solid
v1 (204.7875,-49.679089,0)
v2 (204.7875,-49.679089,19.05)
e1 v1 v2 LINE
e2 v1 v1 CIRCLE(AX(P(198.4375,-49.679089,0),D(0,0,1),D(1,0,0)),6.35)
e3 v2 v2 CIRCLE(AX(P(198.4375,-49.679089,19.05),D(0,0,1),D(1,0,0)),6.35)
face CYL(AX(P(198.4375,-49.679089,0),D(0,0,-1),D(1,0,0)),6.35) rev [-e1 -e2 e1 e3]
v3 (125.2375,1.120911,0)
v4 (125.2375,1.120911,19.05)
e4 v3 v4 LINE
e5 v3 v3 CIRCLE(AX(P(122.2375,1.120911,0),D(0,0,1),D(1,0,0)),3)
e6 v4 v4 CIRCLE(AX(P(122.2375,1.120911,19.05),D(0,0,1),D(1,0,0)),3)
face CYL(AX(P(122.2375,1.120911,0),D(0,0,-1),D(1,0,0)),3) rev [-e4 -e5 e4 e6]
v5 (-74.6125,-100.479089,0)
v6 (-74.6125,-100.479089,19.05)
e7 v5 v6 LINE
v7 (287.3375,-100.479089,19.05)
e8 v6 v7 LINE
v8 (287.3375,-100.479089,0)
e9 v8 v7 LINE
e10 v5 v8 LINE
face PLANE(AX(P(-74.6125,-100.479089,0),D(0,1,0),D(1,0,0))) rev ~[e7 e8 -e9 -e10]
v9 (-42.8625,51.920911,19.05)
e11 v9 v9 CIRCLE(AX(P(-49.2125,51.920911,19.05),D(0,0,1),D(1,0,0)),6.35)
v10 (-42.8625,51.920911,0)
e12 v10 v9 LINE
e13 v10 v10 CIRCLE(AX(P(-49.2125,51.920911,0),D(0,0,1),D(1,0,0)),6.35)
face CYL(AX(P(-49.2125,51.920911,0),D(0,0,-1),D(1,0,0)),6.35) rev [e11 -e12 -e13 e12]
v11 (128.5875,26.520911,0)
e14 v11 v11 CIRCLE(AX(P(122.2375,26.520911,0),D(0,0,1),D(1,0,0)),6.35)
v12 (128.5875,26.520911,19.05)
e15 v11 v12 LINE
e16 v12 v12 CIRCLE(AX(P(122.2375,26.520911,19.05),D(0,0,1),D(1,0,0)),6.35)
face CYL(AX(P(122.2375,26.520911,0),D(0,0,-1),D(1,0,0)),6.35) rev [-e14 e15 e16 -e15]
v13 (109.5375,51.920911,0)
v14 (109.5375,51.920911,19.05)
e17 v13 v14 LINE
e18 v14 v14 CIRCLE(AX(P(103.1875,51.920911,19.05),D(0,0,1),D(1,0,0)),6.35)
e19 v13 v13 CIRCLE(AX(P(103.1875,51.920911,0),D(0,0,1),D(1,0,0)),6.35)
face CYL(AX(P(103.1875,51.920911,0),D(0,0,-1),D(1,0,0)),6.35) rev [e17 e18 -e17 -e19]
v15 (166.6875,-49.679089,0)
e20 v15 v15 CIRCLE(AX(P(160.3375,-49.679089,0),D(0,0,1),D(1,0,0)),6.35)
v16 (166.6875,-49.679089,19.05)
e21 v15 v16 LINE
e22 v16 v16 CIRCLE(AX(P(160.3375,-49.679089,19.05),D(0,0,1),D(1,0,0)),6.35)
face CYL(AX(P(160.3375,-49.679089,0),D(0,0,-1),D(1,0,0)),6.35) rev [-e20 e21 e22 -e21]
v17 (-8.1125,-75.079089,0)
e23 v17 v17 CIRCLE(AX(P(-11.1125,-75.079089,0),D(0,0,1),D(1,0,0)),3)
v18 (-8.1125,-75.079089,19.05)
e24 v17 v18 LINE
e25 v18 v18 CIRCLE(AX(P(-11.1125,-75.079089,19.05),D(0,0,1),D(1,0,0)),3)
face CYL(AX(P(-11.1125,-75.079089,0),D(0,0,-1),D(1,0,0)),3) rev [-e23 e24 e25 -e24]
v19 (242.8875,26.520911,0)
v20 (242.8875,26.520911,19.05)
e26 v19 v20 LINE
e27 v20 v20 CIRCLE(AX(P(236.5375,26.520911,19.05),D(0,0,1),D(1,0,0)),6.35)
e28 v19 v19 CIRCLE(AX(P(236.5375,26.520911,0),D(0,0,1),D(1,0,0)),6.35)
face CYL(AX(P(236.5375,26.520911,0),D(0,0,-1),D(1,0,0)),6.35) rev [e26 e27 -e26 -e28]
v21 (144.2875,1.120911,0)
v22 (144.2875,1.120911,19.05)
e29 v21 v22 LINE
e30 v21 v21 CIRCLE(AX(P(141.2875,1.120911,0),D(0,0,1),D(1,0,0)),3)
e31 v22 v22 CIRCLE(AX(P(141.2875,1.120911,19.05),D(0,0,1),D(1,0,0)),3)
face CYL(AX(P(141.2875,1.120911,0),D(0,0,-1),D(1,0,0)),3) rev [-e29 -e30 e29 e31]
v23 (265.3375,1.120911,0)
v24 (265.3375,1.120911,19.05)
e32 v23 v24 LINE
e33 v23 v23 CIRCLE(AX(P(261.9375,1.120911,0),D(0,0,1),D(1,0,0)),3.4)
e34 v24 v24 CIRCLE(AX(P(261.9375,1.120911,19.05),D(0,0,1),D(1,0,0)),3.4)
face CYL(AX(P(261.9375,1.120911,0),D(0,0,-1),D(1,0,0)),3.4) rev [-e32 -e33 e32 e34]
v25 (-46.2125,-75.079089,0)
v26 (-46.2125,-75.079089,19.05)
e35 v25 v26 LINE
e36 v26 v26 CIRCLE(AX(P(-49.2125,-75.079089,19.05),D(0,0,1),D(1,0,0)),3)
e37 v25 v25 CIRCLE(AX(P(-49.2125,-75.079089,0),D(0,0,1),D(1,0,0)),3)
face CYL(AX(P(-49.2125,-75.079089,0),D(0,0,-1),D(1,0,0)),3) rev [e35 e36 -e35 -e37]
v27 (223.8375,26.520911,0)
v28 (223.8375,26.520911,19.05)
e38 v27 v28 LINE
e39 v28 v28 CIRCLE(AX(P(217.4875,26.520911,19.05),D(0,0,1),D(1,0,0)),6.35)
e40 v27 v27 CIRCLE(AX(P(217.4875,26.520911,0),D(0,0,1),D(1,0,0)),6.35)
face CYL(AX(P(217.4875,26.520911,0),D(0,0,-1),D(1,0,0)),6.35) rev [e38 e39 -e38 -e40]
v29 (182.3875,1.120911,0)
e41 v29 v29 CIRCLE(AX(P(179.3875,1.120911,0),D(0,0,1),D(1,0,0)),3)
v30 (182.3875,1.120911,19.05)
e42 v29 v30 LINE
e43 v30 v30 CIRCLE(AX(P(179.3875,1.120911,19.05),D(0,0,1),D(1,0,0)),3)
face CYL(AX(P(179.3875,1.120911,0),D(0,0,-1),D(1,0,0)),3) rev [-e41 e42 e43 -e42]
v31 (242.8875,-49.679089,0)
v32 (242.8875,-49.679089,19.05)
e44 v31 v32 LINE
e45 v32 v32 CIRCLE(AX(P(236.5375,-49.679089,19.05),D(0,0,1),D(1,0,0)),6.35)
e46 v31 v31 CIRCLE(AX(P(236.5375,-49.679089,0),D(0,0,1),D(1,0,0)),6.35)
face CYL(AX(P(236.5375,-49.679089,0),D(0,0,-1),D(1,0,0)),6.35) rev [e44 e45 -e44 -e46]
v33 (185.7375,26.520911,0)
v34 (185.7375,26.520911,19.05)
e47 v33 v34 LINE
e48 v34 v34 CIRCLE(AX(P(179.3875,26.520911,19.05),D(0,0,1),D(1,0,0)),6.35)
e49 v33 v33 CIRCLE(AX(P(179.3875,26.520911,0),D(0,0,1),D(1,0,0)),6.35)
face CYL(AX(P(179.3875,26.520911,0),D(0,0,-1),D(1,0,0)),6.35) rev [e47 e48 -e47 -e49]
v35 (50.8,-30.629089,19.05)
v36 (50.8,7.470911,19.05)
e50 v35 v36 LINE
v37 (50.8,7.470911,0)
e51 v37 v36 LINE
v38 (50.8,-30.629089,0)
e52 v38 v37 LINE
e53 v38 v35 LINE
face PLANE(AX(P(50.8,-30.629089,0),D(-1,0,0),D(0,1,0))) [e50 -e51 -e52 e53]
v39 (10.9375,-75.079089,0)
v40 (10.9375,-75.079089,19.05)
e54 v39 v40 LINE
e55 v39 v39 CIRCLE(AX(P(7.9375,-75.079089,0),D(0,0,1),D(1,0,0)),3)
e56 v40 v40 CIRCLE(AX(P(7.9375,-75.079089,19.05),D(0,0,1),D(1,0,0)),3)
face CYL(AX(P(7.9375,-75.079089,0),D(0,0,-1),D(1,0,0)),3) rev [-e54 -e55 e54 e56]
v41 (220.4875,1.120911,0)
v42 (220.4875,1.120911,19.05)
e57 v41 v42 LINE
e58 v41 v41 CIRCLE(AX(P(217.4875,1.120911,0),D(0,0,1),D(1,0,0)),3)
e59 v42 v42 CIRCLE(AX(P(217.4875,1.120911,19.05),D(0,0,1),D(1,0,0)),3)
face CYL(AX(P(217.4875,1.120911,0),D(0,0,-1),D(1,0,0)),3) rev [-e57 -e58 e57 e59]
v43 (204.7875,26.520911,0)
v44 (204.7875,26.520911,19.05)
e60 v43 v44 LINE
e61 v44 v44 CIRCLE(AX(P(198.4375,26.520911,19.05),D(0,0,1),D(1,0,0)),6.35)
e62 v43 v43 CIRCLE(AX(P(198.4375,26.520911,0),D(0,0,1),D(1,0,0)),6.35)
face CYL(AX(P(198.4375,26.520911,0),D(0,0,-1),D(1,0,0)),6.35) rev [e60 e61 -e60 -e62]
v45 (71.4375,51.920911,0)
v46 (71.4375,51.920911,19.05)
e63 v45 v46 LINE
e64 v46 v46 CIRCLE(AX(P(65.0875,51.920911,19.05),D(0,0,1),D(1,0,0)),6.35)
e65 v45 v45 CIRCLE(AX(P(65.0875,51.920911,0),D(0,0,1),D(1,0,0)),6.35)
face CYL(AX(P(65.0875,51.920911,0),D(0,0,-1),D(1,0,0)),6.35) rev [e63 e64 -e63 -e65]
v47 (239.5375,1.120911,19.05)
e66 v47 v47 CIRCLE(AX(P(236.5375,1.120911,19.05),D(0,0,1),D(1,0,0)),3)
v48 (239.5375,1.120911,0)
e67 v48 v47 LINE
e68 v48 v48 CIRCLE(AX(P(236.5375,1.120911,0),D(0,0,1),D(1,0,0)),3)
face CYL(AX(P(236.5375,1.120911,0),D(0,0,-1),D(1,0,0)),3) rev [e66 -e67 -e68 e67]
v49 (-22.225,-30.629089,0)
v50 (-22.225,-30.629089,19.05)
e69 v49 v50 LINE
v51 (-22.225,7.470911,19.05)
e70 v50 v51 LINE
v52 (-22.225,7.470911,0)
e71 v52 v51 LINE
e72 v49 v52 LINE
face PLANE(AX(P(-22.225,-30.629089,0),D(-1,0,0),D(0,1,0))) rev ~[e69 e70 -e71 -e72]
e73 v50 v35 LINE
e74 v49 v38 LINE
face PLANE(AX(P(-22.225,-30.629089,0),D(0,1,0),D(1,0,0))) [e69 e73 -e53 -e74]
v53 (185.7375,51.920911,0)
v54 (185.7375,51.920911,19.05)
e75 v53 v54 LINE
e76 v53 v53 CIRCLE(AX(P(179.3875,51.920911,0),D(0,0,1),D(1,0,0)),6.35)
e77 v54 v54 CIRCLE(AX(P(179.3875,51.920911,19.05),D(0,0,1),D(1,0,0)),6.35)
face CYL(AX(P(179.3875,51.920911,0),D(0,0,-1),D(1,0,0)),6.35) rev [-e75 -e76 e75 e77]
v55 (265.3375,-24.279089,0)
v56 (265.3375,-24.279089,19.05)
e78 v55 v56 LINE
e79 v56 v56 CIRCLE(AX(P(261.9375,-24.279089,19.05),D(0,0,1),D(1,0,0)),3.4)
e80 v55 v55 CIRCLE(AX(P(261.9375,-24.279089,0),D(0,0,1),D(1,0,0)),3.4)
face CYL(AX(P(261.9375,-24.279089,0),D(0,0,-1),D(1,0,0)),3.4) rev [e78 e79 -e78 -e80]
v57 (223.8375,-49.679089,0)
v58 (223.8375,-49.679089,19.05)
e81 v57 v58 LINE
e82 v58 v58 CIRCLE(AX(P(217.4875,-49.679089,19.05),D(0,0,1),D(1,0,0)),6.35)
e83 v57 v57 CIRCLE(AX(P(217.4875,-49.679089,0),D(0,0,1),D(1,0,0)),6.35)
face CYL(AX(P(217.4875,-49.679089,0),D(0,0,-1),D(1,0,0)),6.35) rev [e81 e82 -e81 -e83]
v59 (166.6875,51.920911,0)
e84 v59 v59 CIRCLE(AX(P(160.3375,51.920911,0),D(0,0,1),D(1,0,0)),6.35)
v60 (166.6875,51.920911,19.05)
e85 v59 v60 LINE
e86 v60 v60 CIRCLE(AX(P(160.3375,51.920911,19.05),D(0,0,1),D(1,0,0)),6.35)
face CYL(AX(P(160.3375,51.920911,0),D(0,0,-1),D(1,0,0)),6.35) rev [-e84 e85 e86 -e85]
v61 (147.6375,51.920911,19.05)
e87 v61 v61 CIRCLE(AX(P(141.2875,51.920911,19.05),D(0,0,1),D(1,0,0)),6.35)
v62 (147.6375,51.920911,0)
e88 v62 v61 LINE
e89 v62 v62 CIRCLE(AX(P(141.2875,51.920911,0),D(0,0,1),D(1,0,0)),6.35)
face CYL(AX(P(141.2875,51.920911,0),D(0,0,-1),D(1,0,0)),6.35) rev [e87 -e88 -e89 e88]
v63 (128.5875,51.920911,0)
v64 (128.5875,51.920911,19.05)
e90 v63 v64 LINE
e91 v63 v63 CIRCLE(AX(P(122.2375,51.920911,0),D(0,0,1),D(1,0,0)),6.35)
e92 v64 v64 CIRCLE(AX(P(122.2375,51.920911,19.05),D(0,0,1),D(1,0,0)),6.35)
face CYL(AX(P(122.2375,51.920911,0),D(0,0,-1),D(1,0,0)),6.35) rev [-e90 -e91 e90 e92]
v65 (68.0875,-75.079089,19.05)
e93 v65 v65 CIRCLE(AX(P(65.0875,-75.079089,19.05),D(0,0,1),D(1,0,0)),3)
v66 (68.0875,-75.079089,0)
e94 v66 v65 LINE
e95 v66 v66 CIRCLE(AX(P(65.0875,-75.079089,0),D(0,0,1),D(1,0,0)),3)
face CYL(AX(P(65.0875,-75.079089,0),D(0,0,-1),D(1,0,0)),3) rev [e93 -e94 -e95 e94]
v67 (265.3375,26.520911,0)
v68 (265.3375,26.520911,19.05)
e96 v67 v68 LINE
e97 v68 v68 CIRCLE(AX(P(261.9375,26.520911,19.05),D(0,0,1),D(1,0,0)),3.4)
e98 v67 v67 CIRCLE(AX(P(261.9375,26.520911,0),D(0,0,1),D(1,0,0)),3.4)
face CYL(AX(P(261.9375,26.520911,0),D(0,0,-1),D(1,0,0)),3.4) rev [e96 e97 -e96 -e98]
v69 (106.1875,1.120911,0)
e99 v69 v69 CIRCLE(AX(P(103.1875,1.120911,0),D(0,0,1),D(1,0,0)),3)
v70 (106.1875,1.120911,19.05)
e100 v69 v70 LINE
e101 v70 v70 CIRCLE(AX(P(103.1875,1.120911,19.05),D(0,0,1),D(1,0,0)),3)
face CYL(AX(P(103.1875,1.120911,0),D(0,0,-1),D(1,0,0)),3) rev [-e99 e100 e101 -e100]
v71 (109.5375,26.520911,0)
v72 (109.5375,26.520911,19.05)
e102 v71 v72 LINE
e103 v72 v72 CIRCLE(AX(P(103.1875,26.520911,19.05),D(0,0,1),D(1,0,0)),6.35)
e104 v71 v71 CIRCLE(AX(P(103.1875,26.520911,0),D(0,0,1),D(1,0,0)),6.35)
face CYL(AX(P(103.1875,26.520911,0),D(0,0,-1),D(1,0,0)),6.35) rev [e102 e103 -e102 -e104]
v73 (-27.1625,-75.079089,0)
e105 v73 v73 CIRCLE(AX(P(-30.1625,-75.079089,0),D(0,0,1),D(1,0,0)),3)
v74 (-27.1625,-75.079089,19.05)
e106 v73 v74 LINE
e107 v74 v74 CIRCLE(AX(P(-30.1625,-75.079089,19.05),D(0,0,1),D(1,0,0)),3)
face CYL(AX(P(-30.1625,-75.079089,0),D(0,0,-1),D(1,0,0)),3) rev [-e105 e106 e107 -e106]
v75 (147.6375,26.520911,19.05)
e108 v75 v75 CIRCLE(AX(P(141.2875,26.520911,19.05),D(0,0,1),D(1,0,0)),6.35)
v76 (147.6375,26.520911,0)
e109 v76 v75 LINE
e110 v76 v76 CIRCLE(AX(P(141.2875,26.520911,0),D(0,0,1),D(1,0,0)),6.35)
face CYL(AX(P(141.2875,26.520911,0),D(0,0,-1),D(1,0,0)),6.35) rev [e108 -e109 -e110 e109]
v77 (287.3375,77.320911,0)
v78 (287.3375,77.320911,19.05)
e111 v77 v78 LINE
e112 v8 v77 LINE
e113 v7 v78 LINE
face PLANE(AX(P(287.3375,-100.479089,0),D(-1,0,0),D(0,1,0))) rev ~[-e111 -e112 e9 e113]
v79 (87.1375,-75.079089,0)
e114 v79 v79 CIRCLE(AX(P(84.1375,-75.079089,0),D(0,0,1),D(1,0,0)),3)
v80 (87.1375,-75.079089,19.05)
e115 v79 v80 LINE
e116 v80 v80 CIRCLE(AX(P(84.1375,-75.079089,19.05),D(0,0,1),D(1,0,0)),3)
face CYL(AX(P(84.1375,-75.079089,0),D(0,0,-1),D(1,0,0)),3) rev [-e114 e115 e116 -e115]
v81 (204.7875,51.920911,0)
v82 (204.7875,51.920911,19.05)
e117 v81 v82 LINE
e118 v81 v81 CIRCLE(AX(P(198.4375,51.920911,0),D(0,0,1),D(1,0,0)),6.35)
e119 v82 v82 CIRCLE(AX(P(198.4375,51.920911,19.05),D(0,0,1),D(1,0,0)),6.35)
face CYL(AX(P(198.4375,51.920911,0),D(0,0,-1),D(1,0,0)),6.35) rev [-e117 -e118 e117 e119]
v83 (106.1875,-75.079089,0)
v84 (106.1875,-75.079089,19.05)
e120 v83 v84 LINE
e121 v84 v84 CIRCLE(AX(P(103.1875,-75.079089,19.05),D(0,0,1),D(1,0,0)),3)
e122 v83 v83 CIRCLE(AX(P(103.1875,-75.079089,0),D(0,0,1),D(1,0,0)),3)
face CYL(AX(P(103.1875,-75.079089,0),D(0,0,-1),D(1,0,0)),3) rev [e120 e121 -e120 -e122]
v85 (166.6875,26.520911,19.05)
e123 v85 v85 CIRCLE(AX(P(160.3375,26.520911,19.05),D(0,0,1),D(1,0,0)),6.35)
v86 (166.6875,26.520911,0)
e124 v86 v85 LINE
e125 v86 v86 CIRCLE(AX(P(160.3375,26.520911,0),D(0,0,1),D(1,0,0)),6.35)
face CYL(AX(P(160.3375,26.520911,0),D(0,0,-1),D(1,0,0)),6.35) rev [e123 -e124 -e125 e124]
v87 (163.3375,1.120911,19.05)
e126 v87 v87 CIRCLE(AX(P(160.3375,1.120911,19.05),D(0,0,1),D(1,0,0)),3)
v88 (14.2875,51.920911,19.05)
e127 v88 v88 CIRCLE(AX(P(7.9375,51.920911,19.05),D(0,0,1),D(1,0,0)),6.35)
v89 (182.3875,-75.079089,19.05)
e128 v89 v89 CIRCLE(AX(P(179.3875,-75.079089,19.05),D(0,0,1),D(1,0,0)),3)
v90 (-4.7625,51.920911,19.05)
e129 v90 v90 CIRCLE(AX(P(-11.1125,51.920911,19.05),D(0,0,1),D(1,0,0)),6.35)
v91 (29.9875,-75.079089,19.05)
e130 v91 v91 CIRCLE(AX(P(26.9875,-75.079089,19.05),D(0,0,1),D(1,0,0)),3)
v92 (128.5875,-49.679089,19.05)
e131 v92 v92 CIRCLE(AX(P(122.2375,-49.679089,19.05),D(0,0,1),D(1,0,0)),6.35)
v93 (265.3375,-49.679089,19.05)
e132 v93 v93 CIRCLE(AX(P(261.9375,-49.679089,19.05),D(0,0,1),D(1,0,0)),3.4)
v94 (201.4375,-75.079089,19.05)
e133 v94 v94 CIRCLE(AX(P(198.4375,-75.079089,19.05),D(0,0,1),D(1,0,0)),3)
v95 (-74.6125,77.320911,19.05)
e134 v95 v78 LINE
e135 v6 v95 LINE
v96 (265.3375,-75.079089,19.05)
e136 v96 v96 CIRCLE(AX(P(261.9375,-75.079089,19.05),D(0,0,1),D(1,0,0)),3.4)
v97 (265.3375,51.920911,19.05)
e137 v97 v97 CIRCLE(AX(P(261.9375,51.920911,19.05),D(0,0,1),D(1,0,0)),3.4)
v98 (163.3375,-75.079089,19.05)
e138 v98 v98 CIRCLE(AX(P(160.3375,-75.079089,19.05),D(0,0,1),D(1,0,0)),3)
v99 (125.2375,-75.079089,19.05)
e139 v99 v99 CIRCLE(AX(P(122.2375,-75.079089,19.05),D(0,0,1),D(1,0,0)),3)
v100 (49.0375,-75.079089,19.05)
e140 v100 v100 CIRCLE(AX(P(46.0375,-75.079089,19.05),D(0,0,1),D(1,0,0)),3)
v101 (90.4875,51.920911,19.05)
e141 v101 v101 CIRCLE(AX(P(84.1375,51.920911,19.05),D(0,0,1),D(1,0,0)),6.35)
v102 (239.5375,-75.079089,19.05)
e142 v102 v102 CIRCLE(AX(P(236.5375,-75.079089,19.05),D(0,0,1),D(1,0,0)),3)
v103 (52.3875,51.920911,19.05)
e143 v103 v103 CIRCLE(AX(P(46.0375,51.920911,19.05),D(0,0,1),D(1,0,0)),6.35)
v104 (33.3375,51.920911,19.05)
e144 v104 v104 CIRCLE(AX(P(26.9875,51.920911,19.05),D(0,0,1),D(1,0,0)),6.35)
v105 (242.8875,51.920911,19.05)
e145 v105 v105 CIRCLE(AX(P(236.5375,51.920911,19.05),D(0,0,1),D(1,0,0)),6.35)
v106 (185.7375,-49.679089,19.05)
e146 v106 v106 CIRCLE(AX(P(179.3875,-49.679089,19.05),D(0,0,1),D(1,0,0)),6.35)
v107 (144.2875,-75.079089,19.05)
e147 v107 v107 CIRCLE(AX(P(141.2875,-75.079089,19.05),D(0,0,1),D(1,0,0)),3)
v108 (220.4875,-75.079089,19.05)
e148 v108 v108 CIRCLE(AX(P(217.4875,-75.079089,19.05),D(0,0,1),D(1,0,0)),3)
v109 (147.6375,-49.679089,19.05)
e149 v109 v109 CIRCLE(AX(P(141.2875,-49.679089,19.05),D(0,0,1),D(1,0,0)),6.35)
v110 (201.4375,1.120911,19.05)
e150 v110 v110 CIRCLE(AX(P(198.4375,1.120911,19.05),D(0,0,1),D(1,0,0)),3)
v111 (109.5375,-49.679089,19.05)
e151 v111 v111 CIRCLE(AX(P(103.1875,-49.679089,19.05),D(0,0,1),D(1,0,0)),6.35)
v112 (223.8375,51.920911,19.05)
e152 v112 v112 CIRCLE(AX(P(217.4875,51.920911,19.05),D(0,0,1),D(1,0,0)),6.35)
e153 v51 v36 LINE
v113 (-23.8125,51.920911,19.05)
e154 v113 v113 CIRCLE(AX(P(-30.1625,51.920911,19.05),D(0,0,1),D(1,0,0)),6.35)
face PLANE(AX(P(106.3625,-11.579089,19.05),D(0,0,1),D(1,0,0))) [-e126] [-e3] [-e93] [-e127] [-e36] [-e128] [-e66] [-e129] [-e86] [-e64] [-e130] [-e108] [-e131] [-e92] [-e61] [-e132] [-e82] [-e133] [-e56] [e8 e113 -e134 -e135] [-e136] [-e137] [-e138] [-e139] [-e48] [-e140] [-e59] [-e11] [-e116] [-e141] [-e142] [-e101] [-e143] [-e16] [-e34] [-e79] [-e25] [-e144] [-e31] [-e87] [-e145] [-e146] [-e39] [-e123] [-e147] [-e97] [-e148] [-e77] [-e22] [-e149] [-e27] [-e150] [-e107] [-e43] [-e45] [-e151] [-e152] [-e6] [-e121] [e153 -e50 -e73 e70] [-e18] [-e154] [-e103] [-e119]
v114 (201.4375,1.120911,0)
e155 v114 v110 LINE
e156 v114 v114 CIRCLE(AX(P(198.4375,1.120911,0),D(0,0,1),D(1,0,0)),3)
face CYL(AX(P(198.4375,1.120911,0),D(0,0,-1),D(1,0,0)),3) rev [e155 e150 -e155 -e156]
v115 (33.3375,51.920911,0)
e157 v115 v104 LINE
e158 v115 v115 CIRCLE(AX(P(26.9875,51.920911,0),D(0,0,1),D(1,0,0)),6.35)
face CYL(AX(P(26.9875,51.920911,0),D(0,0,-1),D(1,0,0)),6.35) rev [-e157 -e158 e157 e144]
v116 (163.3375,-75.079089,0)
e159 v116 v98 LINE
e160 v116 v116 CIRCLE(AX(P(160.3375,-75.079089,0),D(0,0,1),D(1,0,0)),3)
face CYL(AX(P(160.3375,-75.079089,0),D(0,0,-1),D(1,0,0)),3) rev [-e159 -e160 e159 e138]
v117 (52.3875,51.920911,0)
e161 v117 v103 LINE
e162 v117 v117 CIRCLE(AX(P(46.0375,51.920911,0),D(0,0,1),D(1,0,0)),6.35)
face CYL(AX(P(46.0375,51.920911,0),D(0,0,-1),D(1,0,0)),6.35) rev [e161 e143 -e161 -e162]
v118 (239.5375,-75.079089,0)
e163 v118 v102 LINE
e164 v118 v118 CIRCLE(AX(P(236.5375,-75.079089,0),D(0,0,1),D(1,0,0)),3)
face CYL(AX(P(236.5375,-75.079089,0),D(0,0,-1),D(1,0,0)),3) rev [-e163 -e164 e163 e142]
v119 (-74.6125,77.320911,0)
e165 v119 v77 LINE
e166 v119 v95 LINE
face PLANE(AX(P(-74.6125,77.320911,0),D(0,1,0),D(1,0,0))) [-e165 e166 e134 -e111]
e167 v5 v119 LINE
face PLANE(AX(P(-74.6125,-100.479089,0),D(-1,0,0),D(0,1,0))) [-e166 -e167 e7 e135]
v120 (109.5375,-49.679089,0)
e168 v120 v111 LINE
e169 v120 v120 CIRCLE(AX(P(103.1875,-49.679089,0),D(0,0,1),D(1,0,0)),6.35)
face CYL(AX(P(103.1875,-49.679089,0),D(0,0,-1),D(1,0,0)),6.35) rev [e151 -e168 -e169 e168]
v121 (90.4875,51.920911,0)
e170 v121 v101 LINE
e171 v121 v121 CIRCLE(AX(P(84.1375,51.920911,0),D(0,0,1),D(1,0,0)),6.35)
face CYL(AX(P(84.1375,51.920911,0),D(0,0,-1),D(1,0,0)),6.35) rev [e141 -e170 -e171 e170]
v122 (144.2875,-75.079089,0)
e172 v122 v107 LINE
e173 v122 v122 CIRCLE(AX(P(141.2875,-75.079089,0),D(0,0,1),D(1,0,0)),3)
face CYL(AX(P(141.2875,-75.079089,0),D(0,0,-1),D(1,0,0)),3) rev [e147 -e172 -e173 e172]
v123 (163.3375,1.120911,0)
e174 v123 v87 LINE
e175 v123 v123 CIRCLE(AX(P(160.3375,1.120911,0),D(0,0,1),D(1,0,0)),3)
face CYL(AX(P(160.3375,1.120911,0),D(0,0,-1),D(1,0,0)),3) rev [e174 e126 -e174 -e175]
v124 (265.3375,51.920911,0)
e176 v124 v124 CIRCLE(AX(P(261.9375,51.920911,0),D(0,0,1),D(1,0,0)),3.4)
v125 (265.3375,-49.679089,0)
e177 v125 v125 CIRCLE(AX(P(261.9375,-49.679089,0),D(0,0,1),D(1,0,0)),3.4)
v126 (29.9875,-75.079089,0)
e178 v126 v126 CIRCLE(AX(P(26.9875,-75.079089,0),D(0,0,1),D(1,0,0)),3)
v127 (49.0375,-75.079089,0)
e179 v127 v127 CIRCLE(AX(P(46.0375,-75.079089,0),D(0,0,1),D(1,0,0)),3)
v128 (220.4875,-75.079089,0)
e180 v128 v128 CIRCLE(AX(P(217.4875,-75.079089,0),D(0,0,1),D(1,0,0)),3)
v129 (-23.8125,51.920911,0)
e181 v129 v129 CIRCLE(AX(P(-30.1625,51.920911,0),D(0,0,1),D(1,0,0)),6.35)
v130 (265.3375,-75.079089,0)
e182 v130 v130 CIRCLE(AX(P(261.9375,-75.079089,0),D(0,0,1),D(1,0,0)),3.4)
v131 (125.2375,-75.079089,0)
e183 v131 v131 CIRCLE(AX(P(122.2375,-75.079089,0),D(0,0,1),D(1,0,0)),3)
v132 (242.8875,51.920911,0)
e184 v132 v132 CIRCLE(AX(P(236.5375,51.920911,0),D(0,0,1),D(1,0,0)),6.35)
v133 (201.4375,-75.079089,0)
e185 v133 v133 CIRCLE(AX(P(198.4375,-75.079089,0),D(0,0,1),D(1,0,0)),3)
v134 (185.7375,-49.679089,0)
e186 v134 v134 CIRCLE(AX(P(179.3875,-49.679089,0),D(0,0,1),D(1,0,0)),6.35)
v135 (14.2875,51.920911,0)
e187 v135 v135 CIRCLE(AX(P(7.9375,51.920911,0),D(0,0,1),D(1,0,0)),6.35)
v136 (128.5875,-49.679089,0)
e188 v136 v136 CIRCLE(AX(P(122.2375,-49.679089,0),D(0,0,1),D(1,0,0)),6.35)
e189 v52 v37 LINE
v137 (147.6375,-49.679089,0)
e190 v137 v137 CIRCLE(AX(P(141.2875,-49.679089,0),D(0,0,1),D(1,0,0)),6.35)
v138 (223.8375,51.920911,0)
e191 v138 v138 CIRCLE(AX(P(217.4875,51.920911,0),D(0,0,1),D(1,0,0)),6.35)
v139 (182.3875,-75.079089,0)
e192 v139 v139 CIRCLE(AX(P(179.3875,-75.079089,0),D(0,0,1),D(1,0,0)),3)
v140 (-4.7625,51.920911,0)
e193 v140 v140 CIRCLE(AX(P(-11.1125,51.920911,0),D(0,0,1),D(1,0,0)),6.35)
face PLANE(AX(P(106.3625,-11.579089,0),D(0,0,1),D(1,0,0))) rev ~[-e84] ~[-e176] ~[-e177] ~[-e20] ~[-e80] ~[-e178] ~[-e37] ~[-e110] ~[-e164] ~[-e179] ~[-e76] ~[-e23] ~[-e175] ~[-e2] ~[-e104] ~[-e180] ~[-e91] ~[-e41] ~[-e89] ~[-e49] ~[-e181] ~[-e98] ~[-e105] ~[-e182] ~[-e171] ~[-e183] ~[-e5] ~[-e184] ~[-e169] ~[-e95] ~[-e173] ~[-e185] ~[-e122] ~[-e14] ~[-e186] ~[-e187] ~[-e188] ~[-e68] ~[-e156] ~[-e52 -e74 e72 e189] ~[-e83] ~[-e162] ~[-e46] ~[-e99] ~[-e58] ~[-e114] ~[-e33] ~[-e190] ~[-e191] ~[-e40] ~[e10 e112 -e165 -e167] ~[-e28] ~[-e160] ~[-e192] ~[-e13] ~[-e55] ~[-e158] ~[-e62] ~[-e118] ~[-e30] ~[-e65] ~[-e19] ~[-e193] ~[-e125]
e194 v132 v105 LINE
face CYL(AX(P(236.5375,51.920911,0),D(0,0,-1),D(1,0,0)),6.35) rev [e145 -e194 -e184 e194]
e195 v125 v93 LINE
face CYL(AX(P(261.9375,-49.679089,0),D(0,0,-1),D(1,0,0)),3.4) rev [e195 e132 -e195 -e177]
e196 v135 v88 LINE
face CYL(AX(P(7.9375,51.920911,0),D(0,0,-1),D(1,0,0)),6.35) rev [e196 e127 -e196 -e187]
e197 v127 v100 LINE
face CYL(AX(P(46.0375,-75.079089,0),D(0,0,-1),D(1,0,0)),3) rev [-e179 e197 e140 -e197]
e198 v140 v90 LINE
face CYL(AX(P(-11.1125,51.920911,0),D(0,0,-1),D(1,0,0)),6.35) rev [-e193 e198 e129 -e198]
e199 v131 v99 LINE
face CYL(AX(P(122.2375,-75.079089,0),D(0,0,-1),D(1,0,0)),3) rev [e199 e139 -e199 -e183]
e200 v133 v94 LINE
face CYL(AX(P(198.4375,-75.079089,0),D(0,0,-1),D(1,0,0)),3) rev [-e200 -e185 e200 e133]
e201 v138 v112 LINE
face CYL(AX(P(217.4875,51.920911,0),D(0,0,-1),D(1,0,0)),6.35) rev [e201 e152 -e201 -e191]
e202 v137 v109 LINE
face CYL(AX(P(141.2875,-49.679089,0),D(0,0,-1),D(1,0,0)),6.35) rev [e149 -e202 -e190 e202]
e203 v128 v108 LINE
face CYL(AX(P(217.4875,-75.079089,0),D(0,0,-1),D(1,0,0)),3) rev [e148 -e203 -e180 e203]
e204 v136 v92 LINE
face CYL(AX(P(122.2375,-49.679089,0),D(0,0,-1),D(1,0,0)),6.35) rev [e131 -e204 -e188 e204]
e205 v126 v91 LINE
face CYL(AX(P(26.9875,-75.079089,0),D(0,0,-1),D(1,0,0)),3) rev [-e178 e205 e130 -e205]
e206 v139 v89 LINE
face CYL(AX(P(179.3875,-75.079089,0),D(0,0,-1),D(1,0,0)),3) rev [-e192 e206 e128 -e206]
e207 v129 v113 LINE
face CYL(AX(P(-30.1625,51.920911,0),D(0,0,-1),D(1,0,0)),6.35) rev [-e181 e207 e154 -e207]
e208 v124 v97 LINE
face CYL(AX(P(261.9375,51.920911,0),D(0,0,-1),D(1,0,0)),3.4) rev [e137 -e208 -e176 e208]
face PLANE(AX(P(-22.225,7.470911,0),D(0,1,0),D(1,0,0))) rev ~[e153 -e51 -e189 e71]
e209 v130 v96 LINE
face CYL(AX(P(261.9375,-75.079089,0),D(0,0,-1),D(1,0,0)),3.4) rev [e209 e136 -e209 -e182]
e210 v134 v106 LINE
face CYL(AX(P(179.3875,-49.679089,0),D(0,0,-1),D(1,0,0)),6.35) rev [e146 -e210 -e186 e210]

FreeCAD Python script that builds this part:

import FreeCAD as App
import Part
import Sketcher

V = App.Vector
Q = App.Units.Quantity


def add_polygon(sketch, points):
    """Adds a closed chain of lines whose ends are joined by coincident constraints."""
    first, n = sketch.GeometryCount, len(points)
    for a, b in zip(points, points[1:] + points[:1]):
        sketch.addGeometry(Part.LineSegment(App.Vector(*a, 0), App.Vector(*b, 0)), False)
    for i in range(n):
        sketch.addConstraint(Sketcher.Constraint("Coincident", first + i, 2, first + (i + 1) % n, 1))

doc = App.newDocument("Part")
body = doc.addObject("PartDesign::Body", "Body")

# Sketch on XY plane
sketch1 = doc.addObject("Sketcher::SketchObject", "Sketch")
body.addObject(sketch1)
sketch1.AttachmentSupport = (doc.XY_Plane, [""])
sketch1.MapMode = "FlatFace"
add_polygon(sketch1, [(-74.6, 77.3), (-74.6, -100.5), (287.3, -100.5), (287.3, 77.3)])  # lines 0-3
sketch1.addGeometry(Part.Circle(V(-49.2, -75.1, 0), V(0, 0, 1), 3), False)  # 4
sketch1.addGeometry(Part.Circle(V(-30.2, -75.1, 0), V(0, 0, 1), 3), False)  # 5
sketch1.addGeometry(Part.Circle(V(-11.1, -75.1, 0), V(0, 0, 1), 3), False)  # 6
sketch1.addGeometry(Part.Circle(V(7.9, -75.1, 0), V(0, 0, 1), 3), False)  # 7
sketch1.addGeometry(Part.Circle(V(27, -75.1, 0), V(0, 0, 1), 3), False)  # 8
sketch1.addGeometry(Part.Circle(V(46, -75.1, 0), V(0, 0, 1), 3), False)  # 9
sketch1.addGeometry(Part.Circle(V(65.1, -75.1, 0), V(0, 0, 1), 3), False)  # 10
sketch1.addGeometry(Part.Circle(V(84.1, -75.1, 0), V(0, 0, 1), 3), False)  # 11
sketch1.addGeometry(Part.Circle(V(103.2, -75.1, 0), V(0, 0, 1), 3), False)  # 12
sketch1.addGeometry(Part.Circle(V(103.2, -49.7, 0), V(0, 0, 1), 6.3), False)  # 13
add_polygon(sketch1, [(50.8, -30.6), (-22.2, -30.6), (-22.2, 7.5), (50.8, 7.5)])  # lines 14-17
sketch1.addGeometry(Part.Circle(V(122.2, -75.1, 0), V(0, 0, 1), 3), False)  # 18
sketch1.addGeometry(Part.Circle(V(141.3, -75.1, 0), V(0, 0, 1), 3), False)  # 19
sketch1.addGeometry(Part.Circle(V(160.3, -75.1, 0), V(0, 0, 1), 3), False)  # 20
sketch1.addGeometry(Part.Circle(V(179.4, -75.1, 0), V(0, 0, 1), 3), False)  # 21
sketch1.addGeometry(Part.Circle(V(122.2, -49.7, 0), V(0, 0, 1), 6.3), False)  # 22
sketch1.addGeometry(Part.Circle(V(141.3, -49.7, 0), V(0, 0, 1), 6.3), False)  # 23
sketch1.addGeometry(Part.Circle(V(160.3, -49.7, 0), V(0, 0, 1), 6.3), False)  # 24
sketch1.addGeometry(Part.Circle(V(179.4, -49.7, 0), V(0, 0, 1), 6.3), False)  # 25
sketch1.addGeometry(Part.Circle(V(198.4, -75.1, 0), V(0, 0, 1), 3), False)  # 26
sketch1.addGeometry(Part.Circle(V(217.5, -75.1, 0), V(0, 0, 1), 3), False)  # 27
sketch1.addGeometry(Part.Circle(V(236.5, -75.1, 0), V(0, 0, 1), 3), False)  # 28
sketch1.addGeometry(Part.Circle(V(261.9, -75.1, 0), V(0, 0, 1), 3.4), False)  # 29
sketch1.addGeometry(Part.Circle(V(198.4, -49.7, 0), V(0, 0, 1), 6.3), False)  # 30
sketch1.addGeometry(Part.Circle(V(217.5, -49.7, 0), V(0, 0, 1), 6.3), False)  # 31
sketch1.addGeometry(Part.Circle(V(236.5, -49.7, 0), V(0, 0, 1), 6.3), False)  # 32
sketch1.addGeometry(Part.Circle(V(261.9, -49.7, 0), V(0, 0, 1), 3.4), False)  # 33
sketch1.addGeometry(Part.Circle(V(261.9, -24.3, 0), V(0, 0, 1), 3.4), False)  # 34
sketch1.addGeometry(Part.Circle(V(103.2, 1.1, 0), V(0, 0, 1), 3), False)  # 35
sketch1.addGeometry(Part.Circle(V(-49.2, 51.9, 0), V(0, 0, 1), 6.3), False)  # 36
sketch1.addGeometry(Part.Circle(V(-30.2, 51.9, 0), V(0, 0, 1), 6.3), False)  # 37
sketch1.addGeometry(Part.Circle(V(-11.1, 51.9, 0), V(0, 0, 1), 6.3), False)  # 38
sketch1.addGeometry(Part.Circle(V(7.9, 51.9, 0), V(0, 0, 1), 6.3), False)  # 39
sketch1.addGeometry(Part.Circle(V(103.2, 26.5, 0), V(0, 0, 1), 6.3), False)  # 40
sketch1.addGeometry(Part.Circle(V(27, 51.9, 0), V(0, 0, 1), 6.3), False)  # 41
sketch1.addGeometry(Part.Circle(V(46, 51.9, 0), V(0, 0, 1), 6.3), False)  # 42
sketch1.addGeometry(Part.Circle(V(65.1, 51.9, 0), V(0, 0, 1), 6.3), False)  # 43
sketch1.addGeometry(Part.Circle(V(84.1, 51.9, 0), V(0, 0, 1), 6.3), False)  # 44
sketch1.addGeometry(Part.Circle(V(103.2, 51.9, 0), V(0, 0, 1), 6.3), False)  # 45
sketch1.addGeometry(Part.Circle(V(122.2, 1.1, 0), V(0, 0, 1), 3), False)  # 46
sketch1.addGeometry(Part.Circle(V(141.3, 1.1, 0), V(0, 0, 1), 3), False)  # 47
sketch1.addGeometry(Part.Circle(V(160.3, 1.1, 0), V(0, 0, 1), 3), False)  # 48
sketch1.addGeometry(Part.Circle(V(179.4, 1.1, 0), V(0, 0, 1), 3), False)  # 49
sketch1.addGeometry(Part.Circle(V(198.4, 1.1, 0), V(0, 0, 1), 3), False)  # 50
sketch1.addGeometry(Part.Circle(V(217.5, 1.1, 0), V(0, 0, 1), 3), False)  # 51
sketch1.addGeometry(Part.Circle(V(236.5, 1.1, 0), V(0, 0, 1), 3), False)  # 52
sketch1.addGeometry(Part.Circle(V(261.9, 1.1, 0), V(0, 0, 1), 3.4), False)  # 53
sketch1.addGeometry(Part.Circle(V(122.2, 26.5, 0), V(0, 0, 1), 6.3), False)  # 54
sketch1.addGeometry(Part.Circle(V(141.3, 26.5, 0), V(0, 0, 1), 6.3), False)  # 55
sketch1.addGeometry(Part.Circle(V(160.3, 26.5, 0), V(0, 0, 1), 6.3), False)  # 56
sketch1.addGeometry(Part.Circle(V(179.4, 26.5, 0), V(0, 0, 1), 6.3), False)  # 57
sketch1.addGeometry(Part.Circle(V(122.2, 51.9, 0), V(0, 0, 1), 6.3), False)  # 58
sketch1.addGeometry(Part.Circle(V(141.3, 51.9, 0), V(0, 0, 1), 6.3), False)  # 59
sketch1.addGeometry(Part.Circle(V(160.3, 51.9, 0), V(0, 0, 1), 6.3), False)  # 60
sketch1.addGeometry(Part.Circle(V(179.4, 51.9, 0), V(0, 0, 1), 6.3), False)  # 61
sketch1.addGeometry(Part.Circle(V(198.4, 26.5, 0), V(0, 0, 1), 6.3), False)  # 62
sketch1.addGeometry(Part.Circle(V(217.5, 26.5, 0), V(0, 0, 1), 6.3), False)  # 63
sketch1.addGeometry(Part.Circle(V(236.5, 26.5, 0), V(0, 0, 1), 6.3), False)  # 64
sketch1.addGeometry(Part.Circle(V(261.9, 26.5, 0), V(0, 0, 1), 3.4), False)  # 65
sketch1.addGeometry(Part.Circle(V(198.4, 51.9, 0), V(0, 0, 1), 6.3), False)  # 66
sketch1.addGeometry(Part.Circle(V(217.5, 51.9, 0), V(0, 0, 1), 6.3), False)  # 67
sketch1.addGeometry(Part.Circle(V(236.5, 51.9, 0), V(0, 0, 1), 6.3), False)  # 68
sketch1.addGeometry(Part.Circle(V(261.9, 51.9, 0), V(0, 0, 1), 3.4), False)  # 69
sketch1.addConstraint(Sketcher.Constraint("Vertical", 0))
sketch1.addConstraint(Sketcher.Constraint("Horizontal", 1))
sketch1.addConstraint(Sketcher.Constraint("Vertical", 2))
sketch1.addConstraint(Sketcher.Constraint("Horizontal", 3))
sketch1.addConstraint(Sketcher.Constraint("Horizontal", 14))
sketch1.addConstraint(Sketcher.Constraint("Vertical", 15))
sketch1.addConstraint(Sketcher.Constraint("Horizontal", 16))
sketch1.addConstraint(Sketcher.Constraint("Vertical", 17))
sketch1.addConstraint(Sketcher.Constraint("Equal", 4, 5))
sketch1.addConstraint(Sketcher.Constraint("Equal", 5, 6))
sketch1.addConstraint(Sketcher.Constraint("Equal", 6, 7))
sketch1.addConstraint(Sketcher.Constraint("Equal", 7, 8))
sketch1.addConstraint(Sketcher.Constraint("Equal", 8, 9))
sketch1.addConstraint(Sketcher.Constraint("Equal", 9, 10))
sketch1.addConstraint(Sketcher.Constraint("Equal", 10, 11))
sketch1.addConstraint(Sketcher.Constraint("Equal", 11, 12))
sketch1.addConstraint(Sketcher.Constraint("Equal", 12, 18))
sketch1.addConstraint(Sketcher.Constraint("Equal", 18, 19))
sketch1.addConstraint(Sketcher.Constraint("Equal", 19, 20))
sketch1.addConstraint(Sketcher.Constraint("Equal", 20, 21))
sketch1.addConstraint(Sketcher.Constraint("Equal", 13, 22))
sketch1.addConstraint(Sketcher.Constraint("Equal", 22, 23))
sketch1.addConstraint(Sketcher.Constraint("Equal", 23, 24))
sketch1.addConstraint(Sketcher.Constraint("Equal", 24, 25))
sketch1.addConstraint(Sketcher.Constraint("Equal", 21, 26))
sketch1.addConstraint(Sketcher.Constraint("Equal", 26, 27))
sketch1.addConstraint(Sketcher.Constraint("Equal", 27, 28))
sketch1.addConstraint(Sketcher.Constraint("Equal", 25, 30))
sketch1.addConstraint(Sketcher.Constraint("Equal", 30, 31))
sketch1.addConstraint(Sketcher.Constraint("Equal", 31, 32))
sketch1.addConstraint(Sketcher.Constraint("Equal", 29, 33))
sketch1.addConstraint(Sketcher.Constraint("Equal", 33, 34))
sketch1.addConstraint(Sketcher.Constraint("Equal", 28, 35))
sketch1.addConstraint(Sketcher.Constraint("Equal", 32, 36))
sketch1.addConstraint(Sketcher.Constraint("Equal", 36, 37))
sketch1.addConstraint(Sketcher.Constraint("Equal", 37, 38))
sketch1.addConstraint(Sketcher.Constraint("Equal", 38, 39))
sketch1.addConstraint(Sketcher.Constraint("Equal", 39, 40))
sketch1.addConstraint(Sketcher.Constraint("Equal", 40, 41))
sketch1.addConstraint(Sketcher.Constraint("Equal", 41, 42))
sketch1.addConstraint(Sketcher.Constraint("Equal", 42, 43))
sketch1.addConstraint(Sketcher.Constraint("Equal", 43, 44))
sketch1.addConstraint(Sketcher.Constraint("Equal", 44, 45))
sketch1.addConstraint(Sketcher.Constraint("Equal", 35, 46))
sketch1.addConstraint(Sketcher.Constraint("Equal", 46, 47))
sketch1.addConstraint(Sketcher.Constraint("Equal", 47, 48))
sketch1.addConstraint(Sketcher.Constraint("Equal", 48, 49))
sketch1.addConstraint(Sketcher.Constraint("Equal", 49, 50))
sketch1.addConstraint(Sketcher.Constraint("Equal", 50, 51))
sketch1.addConstraint(Sketcher.Constraint("Equal", 51, 52))
sketch1.addConstraint(Sketcher.Constraint("Equal", 34, 53))
sketch1.addConstraint(Sketcher.Constraint("Equal", 45, 54))
sketch1.addConstraint(Sketcher.Constraint("Equal", 54, 55))
sketch1.addConstraint(Sketcher.Constraint("Equal", 55, 56))
sketch1.addConstraint(Sketcher.Constraint("Equal", 56, 57))
sketch1.addConstraint(Sketcher.Constraint("Equal", 57, 58))
sketch1.addConstraint(Sketcher.Constraint("Equal", 58, 59))
sketch1.addConstraint(Sketcher.Constraint("Equal", 59, 60))
sketch1.addConstraint(Sketcher.Constraint("Equal", 60, 61))
sketch1.addConstraint(Sketcher.Constraint("Equal", 61, 62))
sketch1.addConstraint(Sketcher.Constraint("Equal", 62, 63))
sketch1.addConstraint(Sketcher.Constraint("Equal", 63, 64))
sketch1.addConstraint(Sketcher.Constraint("Equal", 53, 65))
sketch1.addConstraint(Sketcher.Constraint("Equal", 64, 66))
sketch1.addConstraint(Sketcher.Constraint("Equal", 66, 67))
sketch1.addConstraint(Sketcher.Constraint("Equal", 67, 68))
sketch1.addConstraint(Sketcher.Constraint("Equal", 65, 69))
sketch1.addConstraint(Sketcher.Constraint("Horizontal", 4, 3, 5, 3))
sketch1.addConstraint(Sketcher.Constraint("Horizontal", 5, 3, 6, 3))
sketch1.addConstraint(Sketcher.Constraint("Horizontal", 6, 3, 7, 3))
sketch1.addConstraint(Sketcher.Constraint("Horizontal", 7, 3, 8, 3))
sketch1.addConstraint(Sketcher.Constraint("Horizontal", 8, 3, 9, 3))
sketch1.addConstraint(Sketcher.Constraint("Horizontal", 9, 3, 10, 3))
sketch1.addConstraint(Sketcher.Constraint("Horizontal", 10, 3, 11, 3))
sketch1.addConstraint(Sketcher.Constraint("Horizontal", 11, 3, 12, 3))
sketch1.addConstraint(Sketcher.Constraint("Horizontal", 12, 3, 18, 3))
sketch1.addConstraint(Sketcher.Constraint("Horizontal", 18, 3, 19, 3))
sketch1.addConstraint(Sketcher.Constraint("Horizontal", 19, 3, 20, 3))
sketch1.addConstraint(Sketcher.Constraint("Horizontal", 20, 3, 21, 3))
sketch1.addConstraint(Sketcher.Constraint("Horizontal", 13, 3, 22, 3))
sketch1.addConstraint(Sketcher.Constraint("Horizontal", 22, 3, 23, 3))
sketch1.addConstraint(Sketcher.Constraint("Horizontal", 23, 3, 24, 3))
sketch1.addConstraint(Sketcher.Constraint("Horizontal", 24, 3, 25, 3))
sketch1.addConstraint(Sketcher.Constraint("Horizontal", 21, 3, 26, 3))
sketch1.addConstraint(Sketcher.Constraint("Horizontal", 26, 3, 27, 3))
sketch1.addConstraint(Sketcher.Constraint("Horizontal", 27, 3, 28, 3))
sketch1.addConstraint(Sketcher.Constraint("Horizontal", 28, 3, 29, 3))
sketch1.addConstraint(Sketcher.Constraint("Horizontal", 25, 3, 30, 3))
sketch1.addConstraint(Sketcher.Constraint("Horizontal", 30, 3, 31, 3))
sketch1.addConstraint(Sketcher.Constraint("Horizontal", 31, 3, 32, 3))
sketch1.addConstraint(Sketcher.Constraint("Horizontal", 32, 3, 33, 3))
sketch1.addConstraint(Sketcher.Constraint("Horizontal", 36, 3, 37, 3))
sketch1.addConstraint(Sketcher.Constraint("Horizontal", 37, 3, 38, 3))
sketch1.addConstraint(Sketcher.Constraint("Horizontal", 38, 3, 39, 3))
sketch1.addConstraint(Sketcher.Constraint("Horizontal", 39, 3, 41, 3))
sketch1.addConstraint(Sketcher.Constraint("Horizontal", 41, 3, 42, 3))
sketch1.addConstraint(Sketcher.Constraint("Horizontal", 42, 3, 43, 3))
sketch1.addConstraint(Sketcher.Constraint("Horizontal", 43, 3, 44, 3))
sketch1.addConstraint(Sketcher.Constraint("Horizontal", 44, 3, 45, 3))
sketch1.addConstraint(Sketcher.Constraint("Horizontal", 35, 3, 46, 3))
sketch1.addConstraint(Sketcher.Constraint("Horizontal", 46, 3, 47, 3))
sketch1.addConstraint(Sketcher.Constraint("Horizontal", 47, 3, 48, 3))
sketch1.addConstraint(Sketcher.Constraint("Horizontal", 48, 3, 49, 3))
sketch1.addConstraint(Sketcher.Constraint("Horizontal", 49, 3, 50, 3))
sketch1.addConstraint(Sketcher.Constraint("Horizontal", 50, 3, 51, 3))
sketch1.addConstraint(Sketcher.Constraint("Horizontal", 51, 3, 52, 3))
sketch1.addConstraint(Sketcher.Constraint("Horizontal", 52, 3, 53, 3))
sketch1.addConstraint(Sketcher.Constraint("Horizontal", 40, 3, 54, 3))
sketch1.addConstraint(Sketcher.Constraint("Horizontal", 54, 3, 55, 3))
sketch1.addConstraint(Sketcher.Constraint("Horizontal", 55, 3, 56, 3))
sketch1.addConstraint(Sketcher.Constraint("Horizontal", 56, 3, 57, 3))
sketch1.addConstraint(Sketcher.Constraint("Horizontal", 45, 3, 58, 3))
sketch1.addConstraint(Sketcher.Constraint("Horizontal", 58, 3, 59, 3))
sketch1.addConstraint(Sketcher.Constraint("Horizontal", 59, 3, 60, 3))
sketch1.addConstraint(Sketcher.Constraint("Horizontal", 60, 3, 61, 3))
sketch1.addConstraint(Sketcher.Constraint("Horizontal", 57, 3, 62, 3))
sketch1.addConstraint(Sketcher.Constraint("Horizontal", 62, 3, 63, 3))
sketch1.addConstraint(Sketcher.Constraint("Horizontal", 63, 3, 64, 3))
sketch1.addConstraint(Sketcher.Constraint("Horizontal", 64, 3, 65, 3))
sketch1.addConstraint(Sketcher.Constraint("Horizontal", 61, 3, 66, 3))
sketch1.addConstraint(Sketcher.Constraint("Horizontal", 66, 3, 67, 3))
sketch1.addConstraint(Sketcher.Constraint("Horizontal", 67, 3, 68, 3))
sketch1.addConstraint(Sketcher.Constraint("Horizontal", 68, 3, 69, 3))
sketch1.addConstraint(Sketcher.Constraint("Vertical", 12, 3, 13, 3))
sketch1.addConstraint(Sketcher.Constraint("Vertical", 18, 3, 22, 3))
sketch1.addConstraint(Sketcher.Constraint("Vertical", 19, 3, 23, 3))
sketch1.addConstraint(Sketcher.Constraint("Vertical", 20, 3, 24, 3))
sketch1.addConstraint(Sketcher.Constraint("Vertical", 21, 3, 25, 3))
sketch1.addConstraint(Sketcher.Constraint("Vertical", 26, 3, 30, 3))
sketch1.addConstraint(Sketcher.Constraint("Vertical", 27, 3, 31, 3))
sketch1.addConstraint(Sketcher.Constraint("Vertical", 28, 3, 32, 3))
sketch1.addConstraint(Sketcher.Constraint("Vertical", 29, 3, 33, 3))
sketch1.addConstraint(Sketcher.Constraint("Vertical", 33, 3, 34, 3))
sketch1.addConstraint(Sketcher.Constraint("Vertical", 13, 3, 35, 3))
sketch1.addConstraint(Sketcher.Constraint("Vertical", 4, 3, 36, 3))
sketch1.addConstraint(Sketcher.Constraint("Vertical", 5, 3, 37, 3))
sketch1.addConstraint(Sketcher.Constraint("Vertical", 6, 3, 38, 3))
sketch1.addConstraint(Sketcher.Constraint("Vertical", 7, 3, 39, 3))
sketch1.addConstraint(Sketcher.Constraint("Vertical", 35, 3, 40, 3))
sketch1.addConstraint(Sketcher.Constraint("Vertical", 8, 3, 41, 3))
sketch1.addConstraint(Sketcher.Constraint("Vertical", 9, 3, 42, 3))
sketch1.addConstraint(Sketcher.Constraint("Vertical", 10, 3, 43, 3))
sketch1.addConstraint(Sketcher.Constraint("Vertical", 11, 3, 44, 3))
sketch1.addConstraint(Sketcher.Constraint("Vertical", 40, 3, 45, 3))
sketch1.addConstraint(Sketcher.Constraint("Vertical", 22, 3, 46, 3))
sketch1.addConstraint(Sketcher.Constraint("Vertical", 23, 3, 47, 3))
sketch1.addConstraint(Sketcher.Constraint("Vertical", 24, 3, 48, 3))
sketch1.addConstraint(Sketcher.Constraint("Vertical", 25, 3, 49, 3))
sketch1.addConstraint(Sketcher.Constraint("Vertical", 30, 3, 50, 3))
sketch1.addConstraint(Sketcher.Constraint("Vertical", 31, 3, 51, 3))
sketch1.addConstraint(Sketcher.Constraint("Vertical", 32, 3, 52, 3))
sketch1.addConstraint(Sketcher.Constraint("Vertical", 34, 3, 53, 3))
sketch1.addConstraint(Sketcher.Constraint("Vertical", 46, 3, 54, 3))
sketch1.addConstraint(Sketcher.Constraint("Vertical", 47, 3, 55, 3))
sketch1.addConstraint(Sketcher.Constraint("Vertical", 48, 3, 56, 3))
sketch1.addConstraint(Sketcher.Constraint("Vertical", 49, 3, 57, 3))
sketch1.addConstraint(Sketcher.Constraint("Vertical", 54, 3, 58, 3))
sketch1.addConstraint(Sketcher.Constraint("Vertical", 55, 3, 59, 3))
sketch1.addConstraint(Sketcher.Constraint("Vertical", 56, 3, 60, 3))
sketch1.addConstraint(Sketcher.Constraint("Vertical", 57, 3, 61, 3))
sketch1.addConstraint(Sketcher.Constraint("Vertical", 50, 3, 62, 3))
sketch1.addConstraint(Sketcher.Constraint("Vertical", 51, 3, 63, 3))
sketch1.addConstraint(Sketcher.Constraint("Vertical", 52, 3, 64, 3))
sketch1.addConstraint(Sketcher.Constraint("Vertical", 53, 3, 65, 3))
sketch1.addConstraint(Sketcher.Constraint("Vertical", 62, 3, 66, 3))
sketch1.addConstraint(Sketcher.Constraint("Vertical", 63, 3, 67, 3))
sketch1.addConstraint(Sketcher.Constraint("Vertical", 64, 3, 68, 3))
sketch1.addConstraint(Sketcher.Constraint("Vertical", 65, 3, 69, 3))
sketch1.addConstraint(Sketcher.Constraint("Diameter", 13, Q("0.5 in")))
sketch1.addConstraint(Sketcher.Constraint("DistanceY", 0, 2, 0, 1, Q("7 in")))
sketch1.addConstraint(Sketcher.Constraint("DistanceY", 15, 1, 15, 2, Q("1.5 in")))
sketch1.addConstraint(Sketcher.Constraint("DistanceX", -1, 1, 16, 2, Q("2 in")))
sketch1.addConstraint(Sketcher.Constraint("DistanceX", 1, 1, 1, 2, Q("14.25 in")))
sketch1.addConstraint(Sketcher.Constraint("Diameter", 4, 6.0))
sketch1.addConstraint(Sketcher.Constraint("Diameter", 29, 6.8))
sketch1.addConstraint(Sketcher.Constraint("DistanceX", 14, 2, 14, 1, Q("2.875 in")))
sketch1.addConstraint(Sketcher.Constraint("DistanceX", 4, 3, -1, 1, Q("1.9375 in")))
sketch1.addConstraint(Sketcher.Constraint("DistanceX", 5, 3, -1, 1, Q("1.1875 in")))
sketch1.addConstraint(Sketcher.Constraint("DistanceX", 6, 3, -1, 1, Q("0.4375 in")))
sketch1.addConstraint(Sketcher.Constraint("DistanceX", -1, 1, 7, 3, Q("0.3125 in")))
sketch1.addConstraint(Sketcher.Constraint("DistanceX", -1, 1, 8, 3, Q("1.0625 in")))
sketch1.addConstraint(Sketcher.Constraint("DistanceX", -1, 1, 9, 3, Q("1.8125 in")))
sketch1.addConstraint(Sketcher.Constraint("DistanceX", -1, 1, 10, 3, Q("2.5625 in")))
sketch1.addConstraint(Sketcher.Constraint("DistanceX", -1, 1, 11, 3, Q("3.3125 in")))
sketch1.addConstraint(Sketcher.Constraint("DistanceX", -1, 1, 12, 3, Q("4.0625 in")))
sketch1.addConstraint(Sketcher.Constraint("DistanceX", -1, 1, 18, 3, Q("4.8125 in")))
sketch1.addConstraint(Sketcher.Constraint("DistanceX", -1, 1, 19, 3, Q("5.5625 in")))
sketch1.addConstraint(Sketcher.Constraint("DistanceX", -1, 1, 20, 3, Q("6.3125 in")))
sketch1.addConstraint(Sketcher.Constraint("DistanceX", -1, 1, 21, 3, Q("7.0625 in")))
sketch1.addConstraint(Sketcher.Constraint("DistanceX", -1, 1, 26, 3, Q("7.8125 in")))
sketch1.addConstraint(Sketcher.Constraint("DistanceX", -1, 1, 27, 3, Q("8.5625 in")))
sketch1.addConstraint(Sketcher.Constraint("DistanceX", -1, 1, 28, 3, Q("9.3125 in")))
sketch1.addConstraint(Sketcher.Constraint("DistanceX", -1, 1, 29, 3, Q("10.3125 in")))
sketch1.addConstraint(Sketcher.Constraint("DistanceX", 0, 2, -1, 1, Q("2.9375 in")))
sketch1.addConstraint(Sketcher.Constraint("DistanceY", 4, 3, -1, 1, 75.079089))
sketch1.addConstraint(Sketcher.Constraint("DistanceY", 13, 3, -1, 1, 49.679089))
sketch1.addConstraint(Sketcher.Constraint("DistanceY", 34, 3, -1, 1, 24.279089))
sketch1.addConstraint(Sketcher.Constraint("DistanceY", -1, 1, 35, 3, 1.120911))
sketch1.addConstraint(Sketcher.Constraint("DistanceY", -1, 1, 36, 3, 51.920911))
sketch1.addConstraint(Sketcher.Constraint("DistanceY", -1, 1, 40, 3, 26.520911))
sketch1.addConstraint(Sketcher.Constraint("DistanceY", 0, 2, -1, 1, 100.479089))
sketch1.addConstraint(Sketcher.Constraint("DistanceY", 14, 2, -1, 1, 30.629089))
pad1 = doc.addObject("PartDesign::Pad", "Pad")
body.addObject(pad1)
pad1.Profile = sketch1
pad1.Length = Q("0.75 in")

doc.recompute()
